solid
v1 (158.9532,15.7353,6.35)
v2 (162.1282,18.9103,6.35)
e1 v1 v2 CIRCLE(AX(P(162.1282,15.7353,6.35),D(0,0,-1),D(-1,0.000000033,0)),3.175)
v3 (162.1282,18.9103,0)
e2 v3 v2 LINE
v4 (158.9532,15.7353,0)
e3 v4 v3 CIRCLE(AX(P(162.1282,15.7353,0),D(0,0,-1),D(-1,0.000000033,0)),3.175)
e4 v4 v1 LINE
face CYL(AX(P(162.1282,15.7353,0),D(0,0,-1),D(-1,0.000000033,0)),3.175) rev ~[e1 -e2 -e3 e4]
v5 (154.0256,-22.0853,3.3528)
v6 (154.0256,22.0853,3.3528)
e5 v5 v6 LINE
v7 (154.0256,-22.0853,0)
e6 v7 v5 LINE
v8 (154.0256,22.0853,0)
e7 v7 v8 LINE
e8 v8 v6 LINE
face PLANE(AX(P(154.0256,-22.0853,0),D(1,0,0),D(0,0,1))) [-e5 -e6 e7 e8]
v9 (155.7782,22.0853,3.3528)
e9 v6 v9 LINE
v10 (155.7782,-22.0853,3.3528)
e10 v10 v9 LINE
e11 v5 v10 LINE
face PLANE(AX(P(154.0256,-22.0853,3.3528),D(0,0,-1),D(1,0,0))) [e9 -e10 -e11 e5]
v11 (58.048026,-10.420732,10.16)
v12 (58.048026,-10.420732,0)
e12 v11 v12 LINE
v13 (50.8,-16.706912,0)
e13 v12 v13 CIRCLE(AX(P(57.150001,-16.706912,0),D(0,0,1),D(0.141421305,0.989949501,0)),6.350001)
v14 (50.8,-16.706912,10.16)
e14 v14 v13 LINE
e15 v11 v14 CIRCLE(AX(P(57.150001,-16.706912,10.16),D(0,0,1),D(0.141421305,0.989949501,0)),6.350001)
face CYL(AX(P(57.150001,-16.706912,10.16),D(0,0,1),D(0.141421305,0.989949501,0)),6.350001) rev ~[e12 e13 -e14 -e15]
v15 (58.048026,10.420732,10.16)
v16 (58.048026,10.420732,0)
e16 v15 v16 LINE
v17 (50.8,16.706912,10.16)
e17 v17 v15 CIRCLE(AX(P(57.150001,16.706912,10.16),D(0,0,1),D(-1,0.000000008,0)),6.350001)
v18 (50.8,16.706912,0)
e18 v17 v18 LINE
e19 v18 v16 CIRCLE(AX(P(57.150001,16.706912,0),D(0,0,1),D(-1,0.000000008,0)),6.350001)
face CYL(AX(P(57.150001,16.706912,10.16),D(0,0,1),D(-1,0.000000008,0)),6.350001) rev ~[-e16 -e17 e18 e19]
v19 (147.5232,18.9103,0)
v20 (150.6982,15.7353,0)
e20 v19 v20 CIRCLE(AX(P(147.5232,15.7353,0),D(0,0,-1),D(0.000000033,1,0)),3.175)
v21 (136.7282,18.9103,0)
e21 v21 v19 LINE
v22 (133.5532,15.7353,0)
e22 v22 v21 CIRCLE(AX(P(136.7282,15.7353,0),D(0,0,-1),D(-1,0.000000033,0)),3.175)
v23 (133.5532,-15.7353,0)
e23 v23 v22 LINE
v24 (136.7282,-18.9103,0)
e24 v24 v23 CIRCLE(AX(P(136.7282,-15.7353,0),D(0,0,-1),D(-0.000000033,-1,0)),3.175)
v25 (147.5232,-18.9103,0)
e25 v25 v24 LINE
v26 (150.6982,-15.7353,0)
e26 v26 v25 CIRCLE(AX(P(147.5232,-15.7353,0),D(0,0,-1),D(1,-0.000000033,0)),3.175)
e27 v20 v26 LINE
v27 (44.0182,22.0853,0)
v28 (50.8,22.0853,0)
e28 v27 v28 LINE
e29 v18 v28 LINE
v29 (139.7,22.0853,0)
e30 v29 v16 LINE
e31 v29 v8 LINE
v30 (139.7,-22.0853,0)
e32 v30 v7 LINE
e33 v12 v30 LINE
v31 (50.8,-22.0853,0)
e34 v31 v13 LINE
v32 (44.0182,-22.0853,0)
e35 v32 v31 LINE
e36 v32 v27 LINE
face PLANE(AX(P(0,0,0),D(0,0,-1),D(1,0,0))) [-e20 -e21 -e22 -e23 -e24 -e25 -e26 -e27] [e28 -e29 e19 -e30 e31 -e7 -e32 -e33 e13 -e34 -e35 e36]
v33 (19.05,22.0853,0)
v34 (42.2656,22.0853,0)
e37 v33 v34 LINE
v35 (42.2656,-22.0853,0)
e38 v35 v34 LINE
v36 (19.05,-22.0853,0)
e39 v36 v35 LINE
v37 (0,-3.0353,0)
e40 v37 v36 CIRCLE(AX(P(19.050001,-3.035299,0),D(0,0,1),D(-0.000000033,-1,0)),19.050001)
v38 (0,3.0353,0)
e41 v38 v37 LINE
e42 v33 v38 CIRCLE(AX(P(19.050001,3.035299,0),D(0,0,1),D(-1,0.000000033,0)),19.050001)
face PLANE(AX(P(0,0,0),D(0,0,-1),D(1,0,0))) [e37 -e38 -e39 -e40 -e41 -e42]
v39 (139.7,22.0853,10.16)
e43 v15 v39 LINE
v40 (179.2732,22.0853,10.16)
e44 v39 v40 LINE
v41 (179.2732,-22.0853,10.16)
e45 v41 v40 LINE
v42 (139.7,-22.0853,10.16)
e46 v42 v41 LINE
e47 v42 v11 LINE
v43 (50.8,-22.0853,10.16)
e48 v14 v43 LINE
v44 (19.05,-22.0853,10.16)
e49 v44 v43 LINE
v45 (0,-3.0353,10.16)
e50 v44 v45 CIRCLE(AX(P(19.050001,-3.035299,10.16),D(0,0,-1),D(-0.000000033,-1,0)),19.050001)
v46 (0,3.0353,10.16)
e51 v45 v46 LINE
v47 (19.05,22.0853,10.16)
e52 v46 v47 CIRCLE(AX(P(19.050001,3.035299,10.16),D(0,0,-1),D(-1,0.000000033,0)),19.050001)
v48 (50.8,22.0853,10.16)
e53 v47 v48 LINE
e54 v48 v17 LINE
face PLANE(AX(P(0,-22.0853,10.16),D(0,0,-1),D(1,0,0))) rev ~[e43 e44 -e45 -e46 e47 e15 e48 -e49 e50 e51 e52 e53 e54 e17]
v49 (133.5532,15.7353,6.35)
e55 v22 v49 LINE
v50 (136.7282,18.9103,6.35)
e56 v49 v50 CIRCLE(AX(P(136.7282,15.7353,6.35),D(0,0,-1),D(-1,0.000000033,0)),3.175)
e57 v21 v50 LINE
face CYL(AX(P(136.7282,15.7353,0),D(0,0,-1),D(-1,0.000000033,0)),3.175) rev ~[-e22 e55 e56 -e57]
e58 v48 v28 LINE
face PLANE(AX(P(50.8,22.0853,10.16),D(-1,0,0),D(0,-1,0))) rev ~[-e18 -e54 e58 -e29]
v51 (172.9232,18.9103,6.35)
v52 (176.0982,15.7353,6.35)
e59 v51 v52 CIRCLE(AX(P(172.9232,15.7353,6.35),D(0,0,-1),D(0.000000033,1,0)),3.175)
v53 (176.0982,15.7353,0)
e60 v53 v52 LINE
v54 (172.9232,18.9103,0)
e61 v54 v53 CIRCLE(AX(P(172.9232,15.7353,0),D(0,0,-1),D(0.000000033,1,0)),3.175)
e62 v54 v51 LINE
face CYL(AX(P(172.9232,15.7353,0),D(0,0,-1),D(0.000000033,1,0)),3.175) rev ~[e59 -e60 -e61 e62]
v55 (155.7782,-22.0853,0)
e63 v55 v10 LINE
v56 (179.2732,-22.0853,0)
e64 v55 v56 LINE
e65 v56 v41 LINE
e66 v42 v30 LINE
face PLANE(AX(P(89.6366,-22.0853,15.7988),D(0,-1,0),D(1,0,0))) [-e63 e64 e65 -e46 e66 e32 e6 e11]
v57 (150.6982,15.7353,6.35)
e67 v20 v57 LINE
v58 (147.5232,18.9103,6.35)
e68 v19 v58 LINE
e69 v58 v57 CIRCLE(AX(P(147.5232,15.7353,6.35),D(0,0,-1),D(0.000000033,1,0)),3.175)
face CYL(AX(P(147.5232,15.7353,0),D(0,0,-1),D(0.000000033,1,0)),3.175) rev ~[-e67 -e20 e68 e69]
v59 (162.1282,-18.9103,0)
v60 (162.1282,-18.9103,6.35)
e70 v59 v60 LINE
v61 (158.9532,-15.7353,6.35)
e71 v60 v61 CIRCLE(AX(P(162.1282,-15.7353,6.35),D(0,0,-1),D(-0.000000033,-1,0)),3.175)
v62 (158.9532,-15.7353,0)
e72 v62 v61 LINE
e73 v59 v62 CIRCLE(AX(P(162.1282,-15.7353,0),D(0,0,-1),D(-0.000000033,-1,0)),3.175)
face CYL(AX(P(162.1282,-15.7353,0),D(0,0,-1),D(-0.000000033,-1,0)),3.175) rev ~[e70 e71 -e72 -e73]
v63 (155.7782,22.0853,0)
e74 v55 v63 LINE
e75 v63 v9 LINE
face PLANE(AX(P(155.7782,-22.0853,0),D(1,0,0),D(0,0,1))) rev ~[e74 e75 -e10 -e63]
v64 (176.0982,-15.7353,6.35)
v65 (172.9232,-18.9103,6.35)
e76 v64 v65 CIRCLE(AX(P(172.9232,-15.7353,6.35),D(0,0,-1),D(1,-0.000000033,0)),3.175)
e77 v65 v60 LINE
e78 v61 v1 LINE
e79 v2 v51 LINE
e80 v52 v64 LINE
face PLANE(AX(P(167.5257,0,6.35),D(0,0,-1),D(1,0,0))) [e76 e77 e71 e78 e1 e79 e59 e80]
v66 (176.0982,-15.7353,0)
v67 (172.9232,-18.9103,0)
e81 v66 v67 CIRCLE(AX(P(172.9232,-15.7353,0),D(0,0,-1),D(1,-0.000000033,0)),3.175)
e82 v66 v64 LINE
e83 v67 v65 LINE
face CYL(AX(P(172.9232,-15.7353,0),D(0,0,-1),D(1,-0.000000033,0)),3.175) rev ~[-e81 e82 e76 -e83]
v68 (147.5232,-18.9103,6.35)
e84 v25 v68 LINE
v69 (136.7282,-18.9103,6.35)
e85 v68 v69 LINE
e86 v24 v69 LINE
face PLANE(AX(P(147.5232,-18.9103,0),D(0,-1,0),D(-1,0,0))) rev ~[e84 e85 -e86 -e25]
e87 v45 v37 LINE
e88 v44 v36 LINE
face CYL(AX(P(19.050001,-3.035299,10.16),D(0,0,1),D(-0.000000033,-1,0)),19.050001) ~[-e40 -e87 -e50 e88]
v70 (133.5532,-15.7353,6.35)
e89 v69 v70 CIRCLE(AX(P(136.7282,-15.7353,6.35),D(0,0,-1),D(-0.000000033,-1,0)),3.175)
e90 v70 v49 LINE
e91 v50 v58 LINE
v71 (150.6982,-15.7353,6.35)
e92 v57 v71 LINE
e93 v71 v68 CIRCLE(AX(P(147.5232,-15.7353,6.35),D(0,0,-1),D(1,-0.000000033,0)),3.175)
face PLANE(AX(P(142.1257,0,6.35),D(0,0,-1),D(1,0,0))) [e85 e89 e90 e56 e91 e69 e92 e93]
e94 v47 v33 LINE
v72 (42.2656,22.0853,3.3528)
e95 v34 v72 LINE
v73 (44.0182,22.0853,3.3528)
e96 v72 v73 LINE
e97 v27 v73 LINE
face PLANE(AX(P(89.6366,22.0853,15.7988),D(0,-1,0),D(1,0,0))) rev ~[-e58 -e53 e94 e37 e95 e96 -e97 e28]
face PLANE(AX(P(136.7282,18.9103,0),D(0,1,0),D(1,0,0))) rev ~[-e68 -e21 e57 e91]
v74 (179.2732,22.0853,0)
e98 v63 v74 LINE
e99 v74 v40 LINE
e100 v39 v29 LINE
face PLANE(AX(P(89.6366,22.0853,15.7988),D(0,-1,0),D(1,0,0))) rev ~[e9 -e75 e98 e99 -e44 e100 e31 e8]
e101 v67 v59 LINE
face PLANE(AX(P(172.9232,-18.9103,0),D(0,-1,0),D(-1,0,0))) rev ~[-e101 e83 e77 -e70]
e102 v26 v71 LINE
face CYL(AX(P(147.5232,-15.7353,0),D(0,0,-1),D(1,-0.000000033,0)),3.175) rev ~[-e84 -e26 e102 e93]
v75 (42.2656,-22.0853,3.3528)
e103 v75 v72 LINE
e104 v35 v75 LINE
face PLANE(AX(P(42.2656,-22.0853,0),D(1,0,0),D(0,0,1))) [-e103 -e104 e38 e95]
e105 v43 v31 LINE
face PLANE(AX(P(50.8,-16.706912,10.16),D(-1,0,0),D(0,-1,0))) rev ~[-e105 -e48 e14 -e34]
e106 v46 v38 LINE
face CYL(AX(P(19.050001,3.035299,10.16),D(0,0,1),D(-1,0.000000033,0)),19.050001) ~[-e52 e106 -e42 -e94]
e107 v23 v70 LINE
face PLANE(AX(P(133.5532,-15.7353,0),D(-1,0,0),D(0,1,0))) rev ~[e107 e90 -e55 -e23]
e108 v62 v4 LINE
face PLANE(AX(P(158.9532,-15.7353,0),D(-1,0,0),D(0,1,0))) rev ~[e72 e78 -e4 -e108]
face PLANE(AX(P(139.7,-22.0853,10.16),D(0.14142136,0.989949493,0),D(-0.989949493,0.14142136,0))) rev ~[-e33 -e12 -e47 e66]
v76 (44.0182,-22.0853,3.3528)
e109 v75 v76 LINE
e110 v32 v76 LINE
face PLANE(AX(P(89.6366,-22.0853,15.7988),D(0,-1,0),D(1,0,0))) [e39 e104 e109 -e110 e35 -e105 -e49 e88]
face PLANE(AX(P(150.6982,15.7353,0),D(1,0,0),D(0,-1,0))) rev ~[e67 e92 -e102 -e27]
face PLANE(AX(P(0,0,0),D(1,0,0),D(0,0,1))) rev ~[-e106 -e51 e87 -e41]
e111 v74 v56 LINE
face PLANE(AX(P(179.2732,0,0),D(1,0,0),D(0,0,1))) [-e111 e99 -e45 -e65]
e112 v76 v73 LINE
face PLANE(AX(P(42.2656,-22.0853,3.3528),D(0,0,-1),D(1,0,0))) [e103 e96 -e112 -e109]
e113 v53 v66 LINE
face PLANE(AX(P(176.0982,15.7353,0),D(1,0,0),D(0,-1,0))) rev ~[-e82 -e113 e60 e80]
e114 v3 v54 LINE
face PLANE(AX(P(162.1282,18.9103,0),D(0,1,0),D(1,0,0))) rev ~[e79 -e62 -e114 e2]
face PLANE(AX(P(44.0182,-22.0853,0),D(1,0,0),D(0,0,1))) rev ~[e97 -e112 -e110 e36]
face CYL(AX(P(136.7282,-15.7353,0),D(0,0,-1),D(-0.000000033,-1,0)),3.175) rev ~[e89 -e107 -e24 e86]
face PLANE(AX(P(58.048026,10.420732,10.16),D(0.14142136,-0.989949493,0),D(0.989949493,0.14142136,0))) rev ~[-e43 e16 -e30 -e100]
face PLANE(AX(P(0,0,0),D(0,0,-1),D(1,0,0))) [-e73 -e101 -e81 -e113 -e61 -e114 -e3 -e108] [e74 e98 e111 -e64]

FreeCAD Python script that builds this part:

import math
import FreeCAD as App
import Part
import Sketcher
from FreeCAD import Vector
Q = App.Units.Quantity

doc = App.newDocument("Part")
params = doc.addObject("Spreadsheet::Sheet", "Params")
for row, (alias, value) in enumerate([
    ("sketch1_width", "7.058 in"),
    ("sketch1_height", "1.244 in"),
    ("pad1_length", "1.739 in"),
    ("sketch2_width", "0.069 in"),
    ("sketch2_height", "0.132 in"),
    ("sketch3_width", "7.058 in"),
    ("sketch3_height", "0.844 in"),
    ("sketch4_radius", "0.25 in"),
    ("sketch4_width", "3.5 in"),
    ("sketch5_radius", "0.125 in"),
    ("sketch5_width", "0.425 in"),
    ("sketch5_height", "1.239 in"),
    ("pocket4_length", "0.25 in"),
    ("sketch6_radius", "0.75 in"),
], start=1):
    params.set(f"A{row}", alias)
    params.set(f"B{row}", "=" + value)
    params.setAlias(f"B{row}", alias)

body = doc.addObject("PartDesign::Body", "Body")

# Sketch on XZ plane
sketch1 = body.newObject("Sketcher::SketchObject", "Sketch")
sketch1.AttachmentSupport = (doc.getObject("XZ_Plane"), [""])
sketch1.MapMode = "FlatFace"
sketch1.addGeometry([
    Part.LineSegment(Vector(0, 32, 0), Vector(0, 0, 0)),
    Part.LineSegment(Vector(0, 0, 0), Vector(179, 0, 0)),
    Part.LineSegment(Vector(179, 0, 0), Vector(179, 32, 0)),
    Part.LineSegment(Vector(179, 32, 0), Vector(0, 32, 0)),
], False)
sketch1.addConstraint([
    Sketcher.Constraint("Coincident", 0, 2, 1, 1),
    Sketcher.Constraint("Coincident", 1, 2, 2, 1),
    Sketcher.Constraint("Coincident", 2, 2, 3, 1),
    Sketcher.Constraint("Coincident", 3, 2, 0, 1),
    Sketcher.Constraint("Vertical", 0),
    Sketcher.Constraint("Horizontal", 1),
    Sketcher.Constraint("Vertical", 2),
    Sketcher.Constraint("Horizontal", 3),
    Sketcher.Constraint("Coincident", 0, 2, -1, 1),
    Sketcher.Constraint("DistanceX", 1, 1, 1, 2, Q("7.058 in")),
    Sketcher.Constraint("DistanceY", 0, 2, 0, 1, Q("1.244 in")),
])
sketch1.setExpression("Constraints[9]", "Params.sketch1_width")
sketch1.setExpression("Constraints[10]", "Params.sketch1_height")
pad1 = body.newObject("PartDesign::Pad", "Pad")
pad1.Profile = sketch1
pad1.setExpression("Length", "Params.pad1_length")
pad1.Midplane = True

# Sketch on XZ plane
sketch2 = body.newObject("Sketcher::SketchObject", "Sketch001")
sketch2.AttachmentSupport = (doc.getObject("XZ_Plane"), [""])
sketch2.MapMode = "FlatFace"
sketch2.AttachmentOffset = App.Placement(Vector(0, 0, 0.8695 * 25.4), App.Rotation())
sketch2.addGeometry([
    Part.LineSegment(Vector(42.3, 3.4, 0), Vector(42.3, 0, 0)),  # 0
    Part.LineSegment(Vector(42.3, 0, 0), Vector(44, 0, 0)),  # 1
    Part.LineSegment(Vector(44, 0, 0), Vector(44, 3.4, 0)),  # 2
    Part.LineSegment(Vector(44, 3.4, 0), Vector(42.3, 3.4, 0)),  # 3
    Part.LineSegment(Vector(154, 3.4, 0), Vector(154, 0, 0)),  # 4
    Part.LineSegment(Vector(154, 0, 0), Vector(155.8, 0, 0)),  # 5
    Part.LineSegment(Vector(155.8, 0, 0), Vector(155.8, 3.4, 0)),  # 6
    Part.LineSegment(Vector(155.8, 3.4, 0), Vector(154, 3.4, 0)),  # 7
], False)
sketch2.addConstraint([
    Sketcher.Constraint("Coincident", 0, 2, 1, 1),
    Sketcher.Constraint("Coincident", 1, 2, 2, 1),
    Sketcher.Constraint("Coincident", 2, 2, 3, 1),
    Sketcher.Constraint("Coincident", 3, 2, 0, 1),
    Sketcher.Constraint("Coincident", 4, 2, 5, 1),
    Sketcher.Constraint("Coincident", 5, 2, 6, 1),
    Sketcher.Constraint("Coincident", 6, 2, 7, 1),
    Sketcher.Constraint("Coincident", 7, 2, 4, 1),
    Sketcher.Constraint("Vertical", 0),
    Sketcher.Constraint("Horizontal", 1),
    Sketcher.Constraint("Vertical", 2),
    Sketcher.Constraint("Horizontal", 3),
    Sketcher.Constraint("Vertical", 4),
    Sketcher.Constraint("Horizontal", 5),
    Sketcher.Constraint("Vertical", 6),
    Sketcher.Constraint("Horizontal", 7),
    Sketcher.Constraint("PointOnObject", 0, 2, -1),
    Sketcher.Constraint("PointOnObject", 4, 2, -1),
    Sketcher.Constraint("Horizontal", 3, 2, 6, 2),
    Sketcher.Constraint("Equal", 3, 5),
    Sketcher.Constraint("DistanceX", 0, 2, 4, 2, Q("4.4 in")),
    Sketcher.Constraint("DistanceX", 1, 1, 1, 2, Q("0.069 in")),
    Sketcher.Constraint("DistanceY", 0, 2, 0, 1, Q("0.132 in")),
    Sketcher.Constraint("DistanceX", -1, 1, 0, 2, Q("1.664 in")),
])
sketch2.setExpression("Constraints[21]", "Params.sketch2_width")
sketch2.setExpression("Constraints[22]", "Params.sketch2_height")
pocket1 = body.newObject("PartDesign::Pocket", "Pocket")
pocket1.Profile = sketch2
pocket1.Type = "ThroughAll"

# Sketch on XZ plane
sketch3 = body.newObject("Sketcher::SketchObject", "Sketch002")
sketch3.AttachmentSupport = (doc.getObject("XZ_Plane"), [""])
sketch3.MapMode = "FlatFace"
sketch3.AttachmentOffset = App.Placement(Vector(0, 0, 0.8695 * 25.4), App.Rotation())
sketch3.addGeometry([
    Part.LineSegment(Vector(0, 32, 0), Vector(0, 10, 0)),
    Part.LineSegment(Vector(0, 10, 0), Vector(179, 10, 0)),
    Part.LineSegment(Vector(179, 10, 0), Vector(179, 32, 0)),
    Part.LineSegment(Vector(179, 32, 0), Vector(0, 32, 0)),
], False)
sketch3.addConstraint([
    Sketcher.Constraint("Coincident", 0, 2, 1, 1),
    Sketcher.Constraint("Coincident", 1, 2, 2, 1),
    Sketcher.Constraint("Coincident", 2, 2, 3, 1),
    Sketcher.Constraint("Coincident", 3, 2, 0, 1),
    Sketcher.Constraint("Vertical", 0),
    Sketcher.Constraint("Horizontal", 1),
    Sketcher.Constraint("Vertical", 2),
    Sketcher.Constraint("Horizontal", 3),
    Sketcher.Constraint("PointOnObject", 0, 2, -2),
    Sketcher.Constraint("DistanceY", -1, 1, 0, 2, Q("0.4 in")),
    Sketcher.Constraint("DistanceX", 1, 1, 1, 2, Q("7.058 in")),
    Sketcher.Constraint("DistanceY", 0, 2, 0, 1, Q("0.844 in")),
])
sketch3.setExpression("Constraints[10]", "Params.sketch3_width")
sketch3.setExpression("Constraints[11]", "Params.sketch3_height")
pocket2 = body.newObject("PartDesign::Pocket", "Pocket001")
pocket2.Profile = sketch3
pocket2.Type = "ThroughAll"

# Sketch on XY plane
sketch4 = body.newObject("Sketcher::SketchObject", "Sketch003")
sketch4.AttachmentSupport = (doc.getObject("XY_Plane"), [""])
sketch4.MapMode = "FlatFace"
sketch4.AttachmentOffset = App.Placement(Vector(0, 0, 0.4 * 25.4), App.Rotation())
sketch4.addGeometry([
    Part.LineSegment(Vector(58, 10, 0), Vector(140, 22, 0)),  # 0
    Part.LineSegment(Vector(140, 22, 0), Vector(51, 22, 0)),  # 1
    Part.LineSegment(Vector(51, 22, 0), Vector(51, 17, 0)),  # 2
    Part.ArcOfCircle(Part.Circle(Vector(57, 17, 0), Vector(0, 0, 1), 6), math.radians(180), math.radians(278)),  # 3
    Part.LineSegment(Vector(140, -22, 0), Vector(58, -10, 0)),  # 4
    Part.ArcOfCircle(Part.Circle(Vector(57, -17, 0), Vector(0, 0, 1), 6), math.radians(82), math.radians(180)),  # 5
    Part.LineSegment(Vector(51, -17, 0), Vector(51, -22, 0)),  # 6
    Part.LineSegment(Vector(51, -22, 0), Vector(140, -22, 0)),  # 7
], False)
sketch4.addConstraint([
    Sketcher.Constraint("Coincident", 0, 2, 1, 1),
    Sketcher.Constraint("Coincident", 1, 2, 2, 1),
    Sketcher.Constraint("Tangent", 2, 2, 3, 1),
    Sketcher.Constraint("Tangent", 3, 2, 0, 1),
    Sketcher.Constraint("Tangent", 4, 2, 5, 1),
    Sketcher.Constraint("Tangent", 5, 2, 6, 1),
    Sketcher.Constraint("Coincident", 6, 2, 7, 1),
    Sketcher.Constraint("Coincident", 7, 2, 4, 1),
    Sketcher.Constraint("Horizontal", 1),
    Sketcher.Constraint("Vertical", 2),
    Sketcher.Constraint("Vertical", 6),
    Sketcher.Constraint("Horizontal", 7),
    Sketcher.Constraint("Equal", 3, 5),
    Sketcher.Constraint("Symmetric", 3, 3, 5, 3, -1),
    Sketcher.Constraint("Symmetric", 0, 2, 7, 2, -1),
    Sketcher.Constraint("Radius", 3, Q("0.25 in")),
    Sketcher.Constraint("DistanceX", 1, 2, 1, 1, Q("3.5 in")),
    Sketcher.Constraint("DistanceX", -1, 1, 1, 2, Q("2 in")),
    Sketcher.Constraint("DistanceY", 7, 2, 0, 2, Q("1.739 in")),
    Sketcher.Constraint("DistanceY", 2, 2, 2, 1, 5.378388),
])
sketch4.setExpression("Constraints[15]", "Params.sketch4_radius")
sketch4.setExpression("Constraints[16]", "Params.sketch4_width")
pocket3 = body.newObject("PartDesign::Pocket", "Pocket002")
pocket3.Profile = sketch4
pocket3.Type = "ThroughAll"

# Sketch on XY plane
sketch5 = body.newObject("Sketcher::SketchObject", "Sketch004")
sketch5.AttachmentSupport = (doc.getObject("XY_Plane"), [""])
sketch5.MapMode = "FlatFace"
sketch5.addGeometry([
    Part.LineSegment(Vector(172.9, -18.9, 0), Vector(162.1, -18.9, 0)),  # 0
    Part.ArcOfCircle(Part.Circle(Vector(162.1, -15.7, 0), Vector(0, 0, 1), 3.2), math.radians(-180), math.radians(-90)),  # 1
    Part.LineSegment(Vector(159, -15.7, 0), Vector(159, 15.7, 0)),  # 2
    Part.ArcOfCircle(Part.Circle(Vector(162.1, 15.7, 0), Vector(0, 0, 1), 3.2), math.radians(90), math.radians(180)),  # 3
    Part.LineSegment(Vector(162.1, 18.9, 0), Vector(172.9, 18.9, 0)),  # 4
    Part.ArcOfCircle(Part.Circle(Vector(172.9, 15.7, 0), Vector(0, 0, 1), 3.2), math.radians(0), math.radians(90)),  # 5
    Part.LineSegment(Vector(176.1, 15.7, 0), Vector(176.1, -15.7, 0)),  # 6
    Part.ArcOfCircle(Part.Circle(Vector(172.9, -15.7, 0), Vector(0, 0, 1), 3.2), math.radians(-90), math.radians(0)),  # 7
    Part.LineSegment(Vector(147.5, -18.9, 0), Vector(136.7, -18.9, 0)),  # 8
    Part.ArcOfCircle(Part.Circle(Vector(136.7, -15.7, 0), Vector(0, 0, 1), 3.2), math.radians(-180), math.radians(-90)),  # 9
    Part.LineSegment(Vector(133.6, -15.7, 0), Vector(133.6, 15.7, 0)),  # 10
    Part.ArcOfCircle(Part.Circle(Vector(136.7, 15.7, 0), Vector(0, 0, 1), 3.2), math.radians(90), math.radians(180)),  # 11
    Part.LineSegment(Vector(136.7, 18.9, 0), Vector(147.5, 18.9, 0)),  # 12
    Part.ArcOfCircle(Part.Circle(Vector(147.5, 15.7, 0), Vector(0, 0, 1), 3.2), math.radians(0), math.radians(90)),  # 13
    Part.LineSegment(Vector(150.7, 15.7, 0), Vector(150.7, -15.7, 0)),  # 14
    Part.ArcOfCircle(Part.Circle(Vector(147.5, -15.7, 0), Vector(0, 0, 1), 3.2), math.radians(-90), math.radians(0)),  # 15
], False)
sketch5.addConstraint([
    Sketcher.Constraint("Tangent", 0, 2, 1, 2),
    Sketcher.Constraint("Tangent", 1, 1, 2, 1),
    Sketcher.Constraint("Tangent", 2, 2, 3, 2),
    Sketcher.Constraint("Tangent", 3, 1, 4, 1),
    Sketcher.Constraint("Tangent", 4, 2, 5, 2),
    Sketcher.Constraint("Tangent", 5, 1, 6, 1),
    Sketcher.Constraint("Tangent", 6, 2, 7, 2),
    Sketcher.Constraint("Tangent", 7, 1, 0, 1),
    Sketcher.Constraint("Tangent", 8, 2, 9, 2),
    Sketcher.Constraint("Tangent", 9, 1, 10, 1),
    Sketcher.Constraint("Tangent", 10, 2, 11, 2),
    Sketcher.Constraint("Tangent", 11, 1, 12, 1),
    Sketcher.Constraint("Tangent", 12, 2, 13, 2),
    Sketcher.Constraint("Tangent", 13, 1, 14, 1),
    Sketcher.Constraint("Tangent", 14, 2, 15, 2),
    Sketcher.Constraint("Tangent", 15, 1, 8, 1),
    Sketcher.Constraint("Horizontal", 0),
    Sketcher.Constraint("Vertical", 2),
    Sketcher.Constraint("Horizontal", 4),
    Sketcher.Constraint("Vertical", 6),
    Sketcher.Constraint("Horizontal", 8),
    Sketcher.Constraint("Vertical", 10),
    Sketcher.Constraint("Horizontal", 12),
    Sketcher.Constraint("Vertical", 14),
    Sketcher.Constraint("Equal", 1, 3),
    Sketcher.Constraint("Equal", 3, 5),
    Sketcher.Constraint("Equal", 5, 7),
    Sketcher.Constraint("Equal", 7, 9),
    Sketcher.Constraint("Equal", 9, 11),
    Sketcher.Constraint("Equal", 11, 13),
    Sketcher.Constraint("Equal", 13, 15),
    Sketcher.Constraint("Horizontal", 7, 3, 9, 3),
    Sketcher.Constraint("Horizontal", 5, 3, 11, 3),
    Sketcher.Constraint("Equal", 4, 8),
    Sketcher.Constraint("Radius", 1, Q("0.125 in")),
    Sketcher.Constraint("DistanceX", 9, 3, 1, 3, Q("1 in")),
    Sketcher.Constraint("DistanceX", 0, 2, 0, 1, Q("0.425 in")),
    Sketcher.Constraint("DistanceY", 2, 1, 2, 2, Q("1.239 in")),
    Sketcher.Constraint("DistanceX", -1, 1, 1, 3, Q("6.383 in")),
    Sketcher.Constraint("DistanceY", 1, 3, -1, 1, Q("0.6195 in")),
])
sketch5.setExpression("Constraints[34]", "Params.sketch5_radius")
sketch5.setExpression("Constraints[36]", "Params.sketch5_width")
sketch5.setExpression("Constraints[37]", "Params.sketch5_height")
pocket4 = body.newObject("PartDesign::Pocket", "Pocket003")
pocket4.Profile = sketch5
pocket4.setExpression("Length", "Params.pocket4_length")
pocket4.Reversed = True

# Sketch on XY plane
sketch6 = body.newObject("Sketcher::SketchObject", "Sketch005")
sketch6.AttachmentSupport = (doc.getObject("XY_Plane"), [""])
sketch6.MapMode = "FlatFace"
sketch6.AttachmentOffset = App.Placement(Vector(0, 0, 0.4 * 25.4), App.Rotation())
sketch6.addGeometry([
    Part.ArcOfCircle(Part.Circle(Vector(19, 3, 0), Vector(0, 0, 1), 19), math.radians(90), math.radians(180)),  # 0
    Part.LineSegment(Vector(19, 22, 0), Vector(0, 22, 0)),  # 1
    Part.LineSegment(Vector(0, 22, 0), Vector(0, 3, 0)),  # 2
    Part.ArcOfCircle(Part.Circle(Vector(19, -3, 0), Vector(0, 0, 1), 19), math.radians(-180), math.radians(-90)),  # 3
    Part.LineSegment(Vector(0, -3, 0), Vector(0, -22, 0)),  # 4
    Part.LineSegment(Vector(0, -22, 0), Vector(19, -22, 0)),  # 5
], False)
sketch6.addConstraint([
    Sketcher.Constraint("Tangent", 0, 1, 1, 1),
    Sketcher.Constraint("Coincident", 1, 2, 2, 1),
    Sketcher.Constraint("Tangent", 2, 2, 0, 2),
    Sketcher.Constraint("Tangent", 3, 1, 4, 1),
    Sketcher.Constraint("Coincident", 4, 2, 5, 1),
    Sketcher.Constraint("Tangent", 5, 2, 3, 2),
    Sketcher.Constraint("Horizontal", 1),
    Sketcher.Constraint("Vertical", 2),
    Sketcher.Constraint("Vertical", 4),
    Sketcher.Constraint("Horizontal", 5),
    Sketcher.Constraint("Equal", 0, 3),
    Sketcher.Constraint("Symmetric", 2, 2, 3, 1, -1, 1),
    Sketcher.Constraint("PointOnObject", 1, 2, -2),
    Sketcher.Constraint("Radius", 0, Q("0.75 in")),
    Sketcher.Constraint("DistanceY", 3, 3, 0, 3, Q("0.239 in")),
])
sketch6.setExpression("Constraints[13]", "Params.sketch6_radius")
pocket5 = body.newObject("PartDesign::Pocket", "Pocket004")
pocket5.Profile = sketch6
pocket5.Type = "ThroughAll"

doc.recompute()
